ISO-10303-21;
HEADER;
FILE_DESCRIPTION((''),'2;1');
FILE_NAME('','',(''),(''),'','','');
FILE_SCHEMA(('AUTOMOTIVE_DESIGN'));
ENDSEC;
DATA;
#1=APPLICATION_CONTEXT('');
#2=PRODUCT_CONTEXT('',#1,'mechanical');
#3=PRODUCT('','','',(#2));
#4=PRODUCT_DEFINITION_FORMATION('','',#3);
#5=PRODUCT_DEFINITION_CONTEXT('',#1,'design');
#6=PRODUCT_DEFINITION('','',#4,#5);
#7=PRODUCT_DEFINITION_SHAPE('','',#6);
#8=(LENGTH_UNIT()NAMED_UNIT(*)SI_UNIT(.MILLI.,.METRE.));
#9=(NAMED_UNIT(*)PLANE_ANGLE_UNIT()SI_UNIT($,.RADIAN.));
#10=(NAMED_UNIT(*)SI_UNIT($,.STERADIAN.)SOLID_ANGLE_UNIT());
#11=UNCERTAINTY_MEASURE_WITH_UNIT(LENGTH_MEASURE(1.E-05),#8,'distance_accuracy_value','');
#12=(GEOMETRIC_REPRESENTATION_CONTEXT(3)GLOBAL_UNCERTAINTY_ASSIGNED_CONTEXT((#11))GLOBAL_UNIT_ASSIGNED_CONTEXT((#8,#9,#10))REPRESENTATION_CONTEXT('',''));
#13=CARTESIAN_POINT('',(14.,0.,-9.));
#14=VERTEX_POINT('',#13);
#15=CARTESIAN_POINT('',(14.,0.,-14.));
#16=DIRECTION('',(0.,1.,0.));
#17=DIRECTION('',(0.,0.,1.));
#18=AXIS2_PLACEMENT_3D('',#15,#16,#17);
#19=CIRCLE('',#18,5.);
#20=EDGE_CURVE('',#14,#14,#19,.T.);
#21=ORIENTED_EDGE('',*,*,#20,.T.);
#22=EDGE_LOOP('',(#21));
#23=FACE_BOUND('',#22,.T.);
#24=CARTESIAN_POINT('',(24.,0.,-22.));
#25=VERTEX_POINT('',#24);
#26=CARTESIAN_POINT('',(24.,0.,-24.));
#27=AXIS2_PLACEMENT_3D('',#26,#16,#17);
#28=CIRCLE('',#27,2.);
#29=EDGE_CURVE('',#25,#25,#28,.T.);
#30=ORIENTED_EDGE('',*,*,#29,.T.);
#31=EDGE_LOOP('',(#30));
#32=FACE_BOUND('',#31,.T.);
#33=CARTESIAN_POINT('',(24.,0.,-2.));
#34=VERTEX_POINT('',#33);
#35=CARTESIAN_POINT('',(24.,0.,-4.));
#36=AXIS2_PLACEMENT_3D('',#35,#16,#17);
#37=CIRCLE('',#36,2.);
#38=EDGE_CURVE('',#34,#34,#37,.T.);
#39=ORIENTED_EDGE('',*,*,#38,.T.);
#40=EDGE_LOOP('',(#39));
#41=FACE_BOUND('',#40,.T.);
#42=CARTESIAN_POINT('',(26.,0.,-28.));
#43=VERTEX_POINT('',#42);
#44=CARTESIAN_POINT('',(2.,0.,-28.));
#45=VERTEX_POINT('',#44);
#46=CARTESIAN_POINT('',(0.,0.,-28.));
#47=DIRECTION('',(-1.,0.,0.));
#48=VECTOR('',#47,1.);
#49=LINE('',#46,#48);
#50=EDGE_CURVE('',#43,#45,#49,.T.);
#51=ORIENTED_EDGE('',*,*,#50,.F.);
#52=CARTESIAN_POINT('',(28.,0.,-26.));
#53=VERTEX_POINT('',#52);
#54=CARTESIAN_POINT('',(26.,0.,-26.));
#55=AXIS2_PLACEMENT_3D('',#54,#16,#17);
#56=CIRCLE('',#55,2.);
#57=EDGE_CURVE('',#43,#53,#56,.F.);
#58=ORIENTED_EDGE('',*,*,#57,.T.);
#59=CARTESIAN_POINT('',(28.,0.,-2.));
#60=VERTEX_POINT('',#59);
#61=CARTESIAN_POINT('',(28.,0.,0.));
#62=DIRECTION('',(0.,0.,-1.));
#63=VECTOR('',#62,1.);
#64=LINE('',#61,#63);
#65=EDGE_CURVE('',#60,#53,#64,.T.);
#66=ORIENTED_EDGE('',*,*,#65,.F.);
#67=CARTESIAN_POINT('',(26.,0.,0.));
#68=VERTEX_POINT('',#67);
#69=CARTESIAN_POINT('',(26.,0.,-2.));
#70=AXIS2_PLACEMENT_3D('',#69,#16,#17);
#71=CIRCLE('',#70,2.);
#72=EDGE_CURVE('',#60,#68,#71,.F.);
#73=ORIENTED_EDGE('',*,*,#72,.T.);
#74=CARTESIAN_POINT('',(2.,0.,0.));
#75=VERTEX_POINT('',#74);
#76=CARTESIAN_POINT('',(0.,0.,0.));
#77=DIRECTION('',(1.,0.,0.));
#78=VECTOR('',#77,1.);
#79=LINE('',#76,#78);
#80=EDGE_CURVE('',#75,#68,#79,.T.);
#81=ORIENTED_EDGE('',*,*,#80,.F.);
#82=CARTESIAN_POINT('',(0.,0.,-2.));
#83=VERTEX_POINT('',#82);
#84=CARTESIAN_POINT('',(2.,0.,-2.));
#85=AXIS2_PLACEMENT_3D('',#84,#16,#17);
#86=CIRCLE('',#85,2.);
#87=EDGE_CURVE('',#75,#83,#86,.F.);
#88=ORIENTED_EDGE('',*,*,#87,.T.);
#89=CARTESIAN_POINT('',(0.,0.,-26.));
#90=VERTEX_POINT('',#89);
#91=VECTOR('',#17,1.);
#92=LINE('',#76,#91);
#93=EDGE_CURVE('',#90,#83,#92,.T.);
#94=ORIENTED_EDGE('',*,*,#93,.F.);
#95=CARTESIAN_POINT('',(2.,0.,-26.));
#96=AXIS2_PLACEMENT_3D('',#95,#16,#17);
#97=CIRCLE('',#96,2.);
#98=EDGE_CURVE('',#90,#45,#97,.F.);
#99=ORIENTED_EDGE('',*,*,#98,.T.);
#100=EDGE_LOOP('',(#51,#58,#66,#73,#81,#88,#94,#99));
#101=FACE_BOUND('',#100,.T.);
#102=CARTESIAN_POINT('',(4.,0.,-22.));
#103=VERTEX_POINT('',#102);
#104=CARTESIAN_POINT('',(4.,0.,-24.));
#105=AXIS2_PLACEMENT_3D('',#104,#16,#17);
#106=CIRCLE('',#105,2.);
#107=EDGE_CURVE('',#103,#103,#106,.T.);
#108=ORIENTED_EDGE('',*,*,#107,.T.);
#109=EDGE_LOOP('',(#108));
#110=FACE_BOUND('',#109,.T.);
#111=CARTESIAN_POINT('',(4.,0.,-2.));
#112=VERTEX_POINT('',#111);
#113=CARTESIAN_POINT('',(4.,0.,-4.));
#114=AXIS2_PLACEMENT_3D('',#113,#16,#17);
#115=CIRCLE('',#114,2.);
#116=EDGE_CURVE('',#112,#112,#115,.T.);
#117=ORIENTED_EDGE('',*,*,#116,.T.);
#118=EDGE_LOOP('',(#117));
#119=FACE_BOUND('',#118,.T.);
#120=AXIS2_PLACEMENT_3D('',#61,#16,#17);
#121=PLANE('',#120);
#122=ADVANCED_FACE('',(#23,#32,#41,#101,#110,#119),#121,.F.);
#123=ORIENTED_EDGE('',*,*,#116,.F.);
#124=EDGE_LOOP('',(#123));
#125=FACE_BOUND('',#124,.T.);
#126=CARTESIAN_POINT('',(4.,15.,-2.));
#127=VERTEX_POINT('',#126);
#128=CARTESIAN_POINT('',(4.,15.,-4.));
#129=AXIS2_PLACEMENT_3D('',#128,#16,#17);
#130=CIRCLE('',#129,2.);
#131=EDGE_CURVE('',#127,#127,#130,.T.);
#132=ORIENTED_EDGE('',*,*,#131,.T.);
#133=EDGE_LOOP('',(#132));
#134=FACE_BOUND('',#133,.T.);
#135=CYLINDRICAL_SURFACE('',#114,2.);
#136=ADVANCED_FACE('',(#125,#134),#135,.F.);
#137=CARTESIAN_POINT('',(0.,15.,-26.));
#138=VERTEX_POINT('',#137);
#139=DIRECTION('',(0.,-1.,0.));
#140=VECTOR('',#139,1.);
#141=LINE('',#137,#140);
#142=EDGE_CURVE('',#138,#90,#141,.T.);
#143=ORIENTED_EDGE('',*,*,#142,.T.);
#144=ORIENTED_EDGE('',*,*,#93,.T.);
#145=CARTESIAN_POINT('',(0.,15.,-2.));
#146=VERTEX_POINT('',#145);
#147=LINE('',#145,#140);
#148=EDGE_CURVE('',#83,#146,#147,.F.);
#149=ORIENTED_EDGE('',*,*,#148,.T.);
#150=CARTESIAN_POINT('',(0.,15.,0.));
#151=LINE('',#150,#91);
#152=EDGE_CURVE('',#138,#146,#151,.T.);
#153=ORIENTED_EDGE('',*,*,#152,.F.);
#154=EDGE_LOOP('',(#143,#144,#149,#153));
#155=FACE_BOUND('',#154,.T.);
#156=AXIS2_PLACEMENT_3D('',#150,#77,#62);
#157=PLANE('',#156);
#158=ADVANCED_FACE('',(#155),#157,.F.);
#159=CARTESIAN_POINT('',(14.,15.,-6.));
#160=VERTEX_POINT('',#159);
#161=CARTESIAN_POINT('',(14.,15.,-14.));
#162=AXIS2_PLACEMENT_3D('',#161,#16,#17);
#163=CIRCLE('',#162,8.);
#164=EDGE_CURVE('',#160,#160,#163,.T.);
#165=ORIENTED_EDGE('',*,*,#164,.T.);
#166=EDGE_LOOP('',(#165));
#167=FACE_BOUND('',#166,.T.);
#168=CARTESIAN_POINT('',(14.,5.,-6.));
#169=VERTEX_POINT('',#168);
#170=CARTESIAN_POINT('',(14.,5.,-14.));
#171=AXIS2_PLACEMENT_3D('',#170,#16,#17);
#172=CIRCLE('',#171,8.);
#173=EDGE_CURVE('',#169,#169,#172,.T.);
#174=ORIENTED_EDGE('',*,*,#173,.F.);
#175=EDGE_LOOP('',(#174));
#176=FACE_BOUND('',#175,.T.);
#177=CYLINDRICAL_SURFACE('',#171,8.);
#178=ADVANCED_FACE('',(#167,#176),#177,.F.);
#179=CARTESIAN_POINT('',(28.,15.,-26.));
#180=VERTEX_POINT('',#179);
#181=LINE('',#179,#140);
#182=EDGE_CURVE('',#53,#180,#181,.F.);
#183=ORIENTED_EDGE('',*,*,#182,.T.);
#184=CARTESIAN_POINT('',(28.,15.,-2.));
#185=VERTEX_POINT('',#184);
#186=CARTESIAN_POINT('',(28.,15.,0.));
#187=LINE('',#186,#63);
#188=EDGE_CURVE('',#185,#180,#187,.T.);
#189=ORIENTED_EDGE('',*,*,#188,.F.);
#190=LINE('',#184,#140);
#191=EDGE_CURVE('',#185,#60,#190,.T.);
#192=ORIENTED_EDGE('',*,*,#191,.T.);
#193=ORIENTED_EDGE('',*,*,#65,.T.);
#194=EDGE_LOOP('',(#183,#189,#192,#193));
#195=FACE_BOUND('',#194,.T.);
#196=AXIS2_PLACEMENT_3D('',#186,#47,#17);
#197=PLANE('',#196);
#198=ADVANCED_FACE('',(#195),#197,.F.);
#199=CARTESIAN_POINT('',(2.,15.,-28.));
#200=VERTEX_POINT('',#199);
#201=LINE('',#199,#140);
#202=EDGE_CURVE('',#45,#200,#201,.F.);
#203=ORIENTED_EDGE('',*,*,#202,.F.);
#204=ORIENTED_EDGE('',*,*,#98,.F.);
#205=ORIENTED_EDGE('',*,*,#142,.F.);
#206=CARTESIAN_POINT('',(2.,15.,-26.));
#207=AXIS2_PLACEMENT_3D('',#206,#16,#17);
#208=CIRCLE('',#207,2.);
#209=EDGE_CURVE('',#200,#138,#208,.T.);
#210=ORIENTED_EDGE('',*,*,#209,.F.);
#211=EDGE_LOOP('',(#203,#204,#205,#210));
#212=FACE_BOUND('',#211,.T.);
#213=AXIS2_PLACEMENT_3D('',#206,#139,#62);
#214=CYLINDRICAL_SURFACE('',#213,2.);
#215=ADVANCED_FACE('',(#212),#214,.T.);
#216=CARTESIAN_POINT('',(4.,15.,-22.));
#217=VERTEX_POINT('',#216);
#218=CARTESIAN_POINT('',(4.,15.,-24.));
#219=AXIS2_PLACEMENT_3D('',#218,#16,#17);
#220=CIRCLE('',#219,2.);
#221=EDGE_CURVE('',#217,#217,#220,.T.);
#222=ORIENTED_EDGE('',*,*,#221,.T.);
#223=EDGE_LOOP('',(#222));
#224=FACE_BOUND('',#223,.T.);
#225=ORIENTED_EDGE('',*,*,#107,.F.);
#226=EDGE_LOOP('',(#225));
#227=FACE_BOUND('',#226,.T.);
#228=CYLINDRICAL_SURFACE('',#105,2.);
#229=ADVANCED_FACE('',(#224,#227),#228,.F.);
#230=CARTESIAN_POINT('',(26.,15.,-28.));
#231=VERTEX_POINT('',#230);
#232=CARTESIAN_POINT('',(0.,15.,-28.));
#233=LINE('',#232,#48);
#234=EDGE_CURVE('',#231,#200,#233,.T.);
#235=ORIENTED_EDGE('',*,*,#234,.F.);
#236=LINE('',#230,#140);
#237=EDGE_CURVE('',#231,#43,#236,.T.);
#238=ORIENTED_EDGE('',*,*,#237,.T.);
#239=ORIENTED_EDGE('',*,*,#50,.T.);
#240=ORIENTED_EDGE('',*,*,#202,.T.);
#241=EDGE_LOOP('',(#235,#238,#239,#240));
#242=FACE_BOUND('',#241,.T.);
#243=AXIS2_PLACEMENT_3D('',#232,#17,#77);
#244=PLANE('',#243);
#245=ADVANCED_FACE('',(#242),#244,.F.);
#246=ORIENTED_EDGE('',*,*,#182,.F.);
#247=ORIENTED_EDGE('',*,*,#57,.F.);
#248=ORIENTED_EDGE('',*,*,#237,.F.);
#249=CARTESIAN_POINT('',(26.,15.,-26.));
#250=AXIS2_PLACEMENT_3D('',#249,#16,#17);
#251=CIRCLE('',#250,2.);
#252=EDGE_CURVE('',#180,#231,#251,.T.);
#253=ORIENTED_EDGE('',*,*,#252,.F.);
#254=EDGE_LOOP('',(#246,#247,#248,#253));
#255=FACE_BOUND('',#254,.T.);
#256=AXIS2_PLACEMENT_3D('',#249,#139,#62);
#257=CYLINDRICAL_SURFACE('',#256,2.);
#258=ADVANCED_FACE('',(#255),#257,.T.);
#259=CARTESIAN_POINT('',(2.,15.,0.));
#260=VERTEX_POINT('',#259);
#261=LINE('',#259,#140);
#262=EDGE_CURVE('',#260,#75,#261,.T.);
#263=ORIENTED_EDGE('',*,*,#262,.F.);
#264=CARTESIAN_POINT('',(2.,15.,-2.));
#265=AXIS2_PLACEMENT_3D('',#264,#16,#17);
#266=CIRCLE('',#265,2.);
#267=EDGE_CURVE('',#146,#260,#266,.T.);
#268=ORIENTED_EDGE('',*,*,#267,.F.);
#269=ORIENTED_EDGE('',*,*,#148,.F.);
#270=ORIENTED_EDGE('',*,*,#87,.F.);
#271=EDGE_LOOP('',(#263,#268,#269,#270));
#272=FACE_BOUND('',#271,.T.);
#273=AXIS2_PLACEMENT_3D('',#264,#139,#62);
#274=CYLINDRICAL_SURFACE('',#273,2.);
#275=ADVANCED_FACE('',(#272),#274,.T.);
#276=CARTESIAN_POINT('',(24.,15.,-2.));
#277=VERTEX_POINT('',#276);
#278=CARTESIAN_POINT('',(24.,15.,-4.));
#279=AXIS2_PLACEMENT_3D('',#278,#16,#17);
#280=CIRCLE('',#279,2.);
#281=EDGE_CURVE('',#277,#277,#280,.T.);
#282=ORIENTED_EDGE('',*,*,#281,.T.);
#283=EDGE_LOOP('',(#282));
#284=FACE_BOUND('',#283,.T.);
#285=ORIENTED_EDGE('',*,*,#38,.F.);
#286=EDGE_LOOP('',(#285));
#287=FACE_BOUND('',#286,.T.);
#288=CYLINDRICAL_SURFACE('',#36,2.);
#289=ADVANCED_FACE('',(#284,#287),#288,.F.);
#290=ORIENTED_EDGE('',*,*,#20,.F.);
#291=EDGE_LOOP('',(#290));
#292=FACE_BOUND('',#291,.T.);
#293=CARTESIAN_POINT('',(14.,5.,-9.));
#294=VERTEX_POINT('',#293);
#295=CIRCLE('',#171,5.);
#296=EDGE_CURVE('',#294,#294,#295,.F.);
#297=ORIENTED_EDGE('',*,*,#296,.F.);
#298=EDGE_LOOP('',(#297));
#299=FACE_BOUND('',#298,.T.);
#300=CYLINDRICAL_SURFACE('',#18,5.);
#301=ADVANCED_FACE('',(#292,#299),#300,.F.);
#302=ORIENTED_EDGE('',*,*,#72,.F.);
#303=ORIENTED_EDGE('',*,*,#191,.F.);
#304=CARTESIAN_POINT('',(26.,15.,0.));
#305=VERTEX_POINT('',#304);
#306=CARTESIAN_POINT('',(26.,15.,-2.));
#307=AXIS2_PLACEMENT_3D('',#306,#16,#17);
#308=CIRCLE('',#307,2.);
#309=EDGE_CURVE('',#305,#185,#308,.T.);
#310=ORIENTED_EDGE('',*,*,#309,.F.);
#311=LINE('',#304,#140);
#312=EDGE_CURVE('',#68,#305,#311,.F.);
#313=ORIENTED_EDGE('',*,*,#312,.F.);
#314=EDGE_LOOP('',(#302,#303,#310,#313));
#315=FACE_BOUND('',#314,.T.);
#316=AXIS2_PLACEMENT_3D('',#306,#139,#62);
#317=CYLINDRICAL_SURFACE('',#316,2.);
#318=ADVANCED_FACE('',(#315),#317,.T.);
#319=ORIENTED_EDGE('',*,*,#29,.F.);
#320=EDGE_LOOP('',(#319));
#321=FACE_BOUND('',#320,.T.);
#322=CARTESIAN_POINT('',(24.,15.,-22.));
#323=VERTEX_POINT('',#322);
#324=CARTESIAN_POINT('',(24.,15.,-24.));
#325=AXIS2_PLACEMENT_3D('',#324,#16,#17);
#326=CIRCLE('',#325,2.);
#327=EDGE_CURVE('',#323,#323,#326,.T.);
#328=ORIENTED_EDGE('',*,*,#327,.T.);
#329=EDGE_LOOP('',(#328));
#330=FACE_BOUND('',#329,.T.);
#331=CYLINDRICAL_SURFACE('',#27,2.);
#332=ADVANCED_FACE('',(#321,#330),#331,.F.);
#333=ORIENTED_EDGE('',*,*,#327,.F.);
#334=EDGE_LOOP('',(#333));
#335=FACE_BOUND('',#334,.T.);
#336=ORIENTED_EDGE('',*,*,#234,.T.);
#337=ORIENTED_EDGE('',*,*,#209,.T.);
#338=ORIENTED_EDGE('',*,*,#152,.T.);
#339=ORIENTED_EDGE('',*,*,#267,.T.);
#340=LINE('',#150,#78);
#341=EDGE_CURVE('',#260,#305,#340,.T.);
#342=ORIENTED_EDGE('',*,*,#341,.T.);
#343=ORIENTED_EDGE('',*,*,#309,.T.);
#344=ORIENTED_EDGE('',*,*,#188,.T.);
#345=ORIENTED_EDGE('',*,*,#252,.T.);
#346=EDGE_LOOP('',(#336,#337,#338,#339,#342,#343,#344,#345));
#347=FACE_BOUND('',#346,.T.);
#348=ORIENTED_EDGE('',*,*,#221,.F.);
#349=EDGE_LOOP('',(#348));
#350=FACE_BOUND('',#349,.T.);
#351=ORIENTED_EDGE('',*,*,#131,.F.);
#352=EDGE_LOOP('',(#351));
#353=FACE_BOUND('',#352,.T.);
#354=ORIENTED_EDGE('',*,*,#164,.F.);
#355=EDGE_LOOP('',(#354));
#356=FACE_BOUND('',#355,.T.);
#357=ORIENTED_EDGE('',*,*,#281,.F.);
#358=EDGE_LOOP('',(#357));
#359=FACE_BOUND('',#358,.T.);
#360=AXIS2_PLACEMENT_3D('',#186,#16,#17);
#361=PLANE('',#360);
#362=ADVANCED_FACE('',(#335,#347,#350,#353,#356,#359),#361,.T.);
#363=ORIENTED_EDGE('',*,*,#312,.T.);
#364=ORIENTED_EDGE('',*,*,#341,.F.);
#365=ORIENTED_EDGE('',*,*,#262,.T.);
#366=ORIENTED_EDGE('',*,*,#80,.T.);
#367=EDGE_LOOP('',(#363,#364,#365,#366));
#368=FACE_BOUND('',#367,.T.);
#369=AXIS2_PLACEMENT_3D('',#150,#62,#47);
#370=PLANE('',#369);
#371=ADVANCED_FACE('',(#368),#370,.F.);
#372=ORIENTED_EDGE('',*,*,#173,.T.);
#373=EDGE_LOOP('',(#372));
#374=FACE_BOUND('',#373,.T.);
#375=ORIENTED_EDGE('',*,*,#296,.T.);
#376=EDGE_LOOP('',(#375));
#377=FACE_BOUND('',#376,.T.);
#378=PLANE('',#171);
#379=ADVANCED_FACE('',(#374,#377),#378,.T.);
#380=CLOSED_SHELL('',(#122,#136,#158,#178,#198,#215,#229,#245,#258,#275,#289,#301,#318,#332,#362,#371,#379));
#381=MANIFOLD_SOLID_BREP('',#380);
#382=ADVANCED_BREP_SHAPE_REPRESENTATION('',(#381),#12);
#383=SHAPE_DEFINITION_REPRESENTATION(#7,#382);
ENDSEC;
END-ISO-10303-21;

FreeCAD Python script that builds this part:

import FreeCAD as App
import Part
import Sketcher

V = App.Vector


def edges_at(feature, points):
    """Names of the edges that pass closest to the given points."""
    edges = feature.Shape.Edges
    near = lambda p: min(range(len(edges)), key=lambda i: edges[i].distToShape(Part.Vertex(*p))[0])
    return sorted({f"Edge{near(p) + 1}" for p in points})

doc = App.newDocument("Part")
body = doc.addObject("PartDesign::Body", "Body")

# Sketch on XZ plane
sketch1 = doc.addObject("Sketcher::SketchObject", "Sketch")
body.addObject(sketch1)
sketch1.AttachmentSupport = (doc.XZ_Plane, [""])
sketch1.MapMode = "FlatFace"
sketch1.addGeometry([
    Part.LineSegment(V(0, -28, 0), V(0, 0, 0)),
    Part.LineSegment(V(0, 0, 0), V(28, 0, 0)),
    Part.LineSegment(V(28, 0, 0), V(28, -28, 0)),
    Part.LineSegment(V(28, -28, 0), V(0, -28, 0)),
], False)
sketch1.addConstraint([
    Sketcher.Constraint("Coincident", 0, 2, 1, 1),
    Sketcher.Constraint("Coincident", 1, 2, 2, 1),
    Sketcher.Constraint("Coincident", 2, 2, 3, 1),
    Sketcher.Constraint("Coincident", 3, 2, 0, 1),
    Sketcher.Constraint("Vertical", 0),
    Sketcher.Constraint("Horizontal", 1),
    Sketcher.Constraint("Vertical", 2),
    Sketcher.Constraint("Horizontal", 3),
    Sketcher.Constraint("Coincident", 0, 2, -1, 1),
    Sketcher.Constraint("Equal", 3, 0),
    Sketcher.Constraint("DistanceX", 1, 1, 1, 2, 28.0),
])
pad1 = doc.addObject("PartDesign::Pad", "Pad")
body.addObject(pad1)
pad1.Profile = sketch1
pad1.Length = 15
pad1.Reversed = True

# Sketch on XZ plane
sketch2 = doc.addObject("Sketcher::SketchObject", "Sketch001")
body.addObject(sketch2)
sketch2.AttachmentSupport = (doc.XZ_Plane, [""])
sketch2.MapMode = "FlatFace"
sketch2.AttachmentOffset = App.Placement(V(0, 0, -15), App.Rotation())
sketch2.addGeometry([
    Part.Circle(V(14, -14, 0), V(0, 0, 1), 5),  # 0
    Part.Circle(V(4, -24, 0), V(0, 0, 1), 2),  # 1
    Part.Circle(V(24, -24, 0), V(0, 0, 1), 2),  # 2
    Part.Circle(V(4, -4, 0), V(0, 0, 1), 2),  # 3
    Part.Circle(V(24, -4, 0), V(0, 0, 1), 2),  # 4
], False)
sketch2.addConstraint([
    Sketcher.Constraint("Equal", 1, 2),
    Sketcher.Constraint("Equal", 2, 3),
    Sketcher.Constraint("Equal", 3, 4),
    Sketcher.Constraint("Horizontal", 1, 3, 2, 3),
    Sketcher.Constraint("Horizontal", 3, 3, 4, 3),
    Sketcher.Constraint("Vertical", 1, 3, 3, 3),
    Sketcher.Constraint("Vertical", 2, 3, 4, 3),
    Sketcher.Constraint("Diameter", 0, 10.0),
    Sketcher.Constraint("Diameter", 1, 4.0),
    Sketcher.Constraint("DistanceX", -1, 1, 0, 3, 14.0),
    Sketcher.Constraint("DistanceY", 0, 3, -1, 1, 14.0),
    Sketcher.Constraint("DistanceX", -1, 1, 1, 3, 4.0),
    Sketcher.Constraint("DistanceY", 1, 3, -1, 1, 24.0),
    Sketcher.Constraint("DistanceX", -1, 1, 2, 3, 24.0),
    Sketcher.Constraint("DistanceY", 3, 3, -1, 1, 4.0),
])
pocket1 = doc.addObject("PartDesign::Pocket", "Pocket")
body.addObject(pocket1)
pocket1.Profile = sketch2
pocket1.Type = "ThroughAll"
pocket1.Reversed = True

# Sketch on XZ plane
sketch3 = doc.addObject("Sketcher::SketchObject", "Sketch002")
body.addObject(sketch3)
sketch3.AttachmentSupport = (doc.XZ_Plane, [""])
sketch3.MapMode = "FlatFace"
sketch3.AttachmentOffset = App.Placement(V(0, 0, -15), App.Rotation())
sketch3.addGeometry(Part.Circle(V(14, -14, 0), V(0, 0, 1), 8), False)
sketch3.addConstraint([
    Sketcher.Constraint("Diameter", 0, 16.0),
    Sketcher.Constraint("DistanceX", -1, 1, 0, 3, 14.0),
    Sketcher.Constraint("DistanceY", 0, 3, -1, 1, 14.0),
])
pocket2 = doc.addObject("PartDesign::Pocket", "Pocket001")
body.addObject(pocket2)
pocket2.Profile = sketch3
pocket2.Length = 10
pocket2.Reversed = True
doc.recompute()

fillet = doc.addObject("PartDesign::Fillet", "Fillet")
body.addObject(fillet)
fillet.Base = (pocket2, edges_at(pocket2, [
    (0, 7.5, 0),
    (0, 7.5, -28),
    (28, 7.5, -28),
    (28, 7.5, 0),
]))
fillet.Radius = 2

doc.recompute()
